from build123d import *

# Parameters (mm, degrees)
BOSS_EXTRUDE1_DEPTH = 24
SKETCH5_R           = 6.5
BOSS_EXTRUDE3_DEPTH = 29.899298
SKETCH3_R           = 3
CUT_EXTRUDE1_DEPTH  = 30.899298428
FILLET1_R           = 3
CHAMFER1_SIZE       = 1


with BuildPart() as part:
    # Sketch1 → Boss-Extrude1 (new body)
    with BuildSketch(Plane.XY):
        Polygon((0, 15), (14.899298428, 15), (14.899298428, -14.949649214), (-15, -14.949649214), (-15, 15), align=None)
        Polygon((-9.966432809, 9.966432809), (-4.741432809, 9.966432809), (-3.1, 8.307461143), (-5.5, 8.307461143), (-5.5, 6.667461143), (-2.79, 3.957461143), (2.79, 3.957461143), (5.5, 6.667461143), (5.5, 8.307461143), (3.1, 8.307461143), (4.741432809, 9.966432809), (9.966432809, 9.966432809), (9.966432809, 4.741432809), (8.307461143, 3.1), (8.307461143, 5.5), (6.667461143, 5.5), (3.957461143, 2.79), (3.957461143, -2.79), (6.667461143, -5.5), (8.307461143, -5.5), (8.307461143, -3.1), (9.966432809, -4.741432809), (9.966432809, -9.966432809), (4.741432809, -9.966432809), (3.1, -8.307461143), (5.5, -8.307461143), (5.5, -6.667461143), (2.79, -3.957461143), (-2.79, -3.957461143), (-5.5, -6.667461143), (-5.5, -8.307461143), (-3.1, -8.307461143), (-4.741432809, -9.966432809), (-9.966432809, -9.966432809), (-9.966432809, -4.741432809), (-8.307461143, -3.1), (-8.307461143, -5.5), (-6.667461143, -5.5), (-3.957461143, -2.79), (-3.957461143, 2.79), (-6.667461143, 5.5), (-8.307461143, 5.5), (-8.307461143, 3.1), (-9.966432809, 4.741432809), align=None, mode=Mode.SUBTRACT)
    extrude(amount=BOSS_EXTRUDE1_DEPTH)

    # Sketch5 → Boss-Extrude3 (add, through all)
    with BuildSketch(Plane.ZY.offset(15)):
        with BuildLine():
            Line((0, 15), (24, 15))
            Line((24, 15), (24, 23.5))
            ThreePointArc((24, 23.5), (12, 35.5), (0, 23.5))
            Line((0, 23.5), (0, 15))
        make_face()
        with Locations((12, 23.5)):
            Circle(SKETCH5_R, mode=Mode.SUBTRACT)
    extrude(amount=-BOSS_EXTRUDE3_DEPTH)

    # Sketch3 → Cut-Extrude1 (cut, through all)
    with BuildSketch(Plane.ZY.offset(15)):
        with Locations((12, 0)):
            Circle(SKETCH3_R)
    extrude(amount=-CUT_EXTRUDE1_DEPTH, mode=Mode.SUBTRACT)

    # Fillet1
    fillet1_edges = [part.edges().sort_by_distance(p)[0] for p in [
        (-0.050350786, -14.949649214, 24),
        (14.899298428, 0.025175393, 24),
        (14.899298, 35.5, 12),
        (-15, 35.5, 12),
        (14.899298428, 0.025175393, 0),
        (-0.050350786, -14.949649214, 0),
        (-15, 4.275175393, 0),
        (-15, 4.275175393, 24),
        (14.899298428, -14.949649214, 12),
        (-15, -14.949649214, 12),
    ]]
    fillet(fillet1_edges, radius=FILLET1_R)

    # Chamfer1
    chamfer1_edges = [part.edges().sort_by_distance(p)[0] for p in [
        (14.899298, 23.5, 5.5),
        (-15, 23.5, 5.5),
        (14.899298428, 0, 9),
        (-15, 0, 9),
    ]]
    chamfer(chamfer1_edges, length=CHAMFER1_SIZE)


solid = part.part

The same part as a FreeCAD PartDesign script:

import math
import FreeCAD as App
import Part
import Sketcher
from FreeCAD import Vector
Q = App.Units.Quantity


def edges_at(feature, points):
    """Names of the edges that pass closest to the given points."""
    edges = feature.Shape.Edges
    near = lambda p: min(range(len(edges)), key=lambda i: edges[i].distToShape(Part.Vertex(*p))[0])
    return sorted({f"Edge{near(p) + 1}" for p in points})

doc = App.newDocument("Part")
body = doc.addObject("PartDesign::Body", "Body")

# Sketch on XY plane
sketch1 = body.newObject("Sketcher::SketchObject", "Sketch")
sketch1.AttachmentSupport = (doc.getObject("XY_Plane"), [""])
sketch1.MapMode = "FlatFace"
sketch1.addGeometry([
    Part.LineSegment(Vector(14.9, 15, 0), Vector(-15, 15, 0)),  # 0
    Part.LineSegment(Vector(-15, 15, 0), Vector(-15, -14.9, 0)),  # 1
    Part.LineSegment(Vector(-15, -14.9, 0), Vector(14.9, -14.9, 0)),  # 2
    Part.LineSegment(Vector(14.9, -14.9, 0), Vector(14.9, 15, 0)),  # 3
    Part.LineSegment(Vector(-10, 10, 0), Vector(-4.7, 10, 0)),  # 4
    Part.LineSegment(Vector(-4.7, 10, 0), Vector(-3.1, 8.3, 0)),  # 5
    Part.LineSegment(Vector(-3.1, 8.3, 0), Vector(-5.5, 8.3, 0)),  # 6
    Part.LineSegment(Vector(-5.5, 8.3, 0), Vector(-5.5, 6.7, 0)),  # 7
    Part.LineSegment(Vector(-5.5, 6.7, 0), Vector(-2.8, 4, 0)),  # 8
    Part.LineSegment(Vector(-2.8, 4, 0), Vector(2.8, 4, 0)),  # 9
    Part.LineSegment(Vector(2.8, 4, 0), Vector(5.5, 6.7, 0)),  # 10
    Part.LineSegment(Vector(5.5, 6.7, 0), Vector(5.5, 8.3, 0)),  # 11
    Part.LineSegment(Vector(5.5, 8.3, 0), Vector(3.1, 8.3, 0)),  # 12
    Part.LineSegment(Vector(3.1, 8.3, 0), Vector(4.7, 10, 0)),  # 13
    Part.LineSegment(Vector(4.7, 10, 0), Vector(10, 10, 0)),  # 14
    Part.LineSegment(Vector(10, 10, 0), Vector(10, 4.7, 0)),  # 15
    Part.LineSegment(Vector(10, 4.7, 0), Vector(8.3, 3.1, 0)),  # 16
    Part.LineSegment(Vector(8.3, 3.1, 0), Vector(8.3, 5.5, 0)),  # 17
    Part.LineSegment(Vector(8.3, 5.5, 0), Vector(6.7, 5.5, 0)),  # 18
    Part.LineSegment(Vector(6.7, 5.5, 0), Vector(4, 2.8, 0)),  # 19
    Part.LineSegment(Vector(4, 2.8, 0), Vector(4, -2.8, 0)),  # 20
    Part.LineSegment(Vector(4, -2.8, 0), Vector(6.7, -5.5, 0)),  # 21
    Part.LineSegment(Vector(6.7, -5.5, 0), Vector(8.3, -5.5, 0)),  # 22
    Part.LineSegment(Vector(8.3, -5.5, 0), Vector(8.3, -3.1, 0)),  # 23
    Part.LineSegment(Vector(8.3, -3.1, 0), Vector(10, -4.7, 0)),  # 24
    Part.LineSegment(Vector(10, -4.7, 0), Vector(10, -10, 0)),  # 25
    Part.LineSegment(Vector(10, -10, 0), Vector(4.7, -10, 0)),  # 26
    Part.LineSegment(Vector(4.7, -10, 0), Vector(3.1, -8.3, 0)),  # 27
    Part.LineSegment(Vector(3.1, -8.3, 0), Vector(5.5, -8.3, 0)),  # 28
    Part.LineSegment(Vector(5.5, -8.3, 0), Vector(5.5, -6.7, 0)),  # 29
    Part.LineSegment(Vector(5.5, -6.7, 0), Vector(2.8, -4, 0)),  # 30
    Part.LineSegment(Vector(2.8, -4, 0), Vector(-2.8, -4, 0)),  # 31
    Part.LineSegment(Vector(-2.8, -4, 0), Vector(-5.5, -6.7, 0)),  # 32
    Part.LineSegment(Vector(-5.5, -6.7, 0), Vector(-5.5, -8.3, 0)),  # 33
    Part.LineSegment(Vector(-5.5, -8.3, 0), Vector(-3.1, -8.3, 0)),  # 34
    Part.LineSegment(Vector(-3.1, -8.3, 0), Vector(-4.7, -10, 0)),  # 35
    Part.LineSegment(Vector(-4.7, -10, 0), Vector(-10, -10, 0)),  # 36
    Part.LineSegment(Vector(-10, -10, 0), Vector(-10, -4.7, 0)),  # 37
    Part.LineSegment(Vector(-10, -4.7, 0), Vector(-8.3, -3.1, 0)),  # 38
    Part.LineSegment(Vector(-8.3, -3.1, 0), Vector(-8.3, -5.5, 0)),  # 39
    Part.LineSegment(Vector(-8.3, -5.5, 0), Vector(-6.7, -5.5, 0)),  # 40
    Part.LineSegment(Vector(-6.7, -5.5, 0), Vector(-4, -2.8, 0)),  # 41
    Part.LineSegment(Vector(-4, -2.8, 0), Vector(-4, 2.8, 0)),  # 42
    Part.LineSegment(Vector(-4, 2.8, 0), Vector(-6.7, 5.5, 0)),  # 43
    Part.LineSegment(Vector(-6.7, 5.5, 0), Vector(-8.3, 5.5, 0)),  # 44
    Part.LineSegment(Vector(-8.3, 5.5, 0), Vector(-8.3, 3.1, 0)),  # 45
    Part.LineSegment(Vector(-8.3, 3.1, 0), Vector(-10, 4.7, 0)),  # 46
    Part.LineSegment(Vector(-10, 4.7, 0), Vector(-10, 10, 0)),  # 47
], False)
sketch1.addConstraint([
    Sketcher.Constraint("Coincident", 0, 2, 1, 1),
    Sketcher.Constraint("Coincident", 1, 2, 2, 1),
    Sketcher.Constraint("Coincident", 2, 2, 3, 1),
    Sketcher.Constraint("Coincident", 3, 2, 0, 1),
    Sketcher.Constraint("Coincident", 4, 2, 5, 1),
    Sketcher.Constraint("Coincident", 5, 2, 6, 1),
    Sketcher.Constraint("Coincident", 6, 2, 7, 1),
    Sketcher.Constraint("Coincident", 7, 2, 8, 1),
    Sketcher.Constraint("Coincident", 8, 2, 9, 1),
    Sketcher.Constraint("Coincident", 9, 2, 10, 1),
    Sketcher.Constraint("Coincident", 10, 2, 11, 1),
    Sketcher.Constraint("Coincident", 11, 2, 12, 1),
    Sketcher.Constraint("Coincident", 12, 2, 13, 1),
    Sketcher.Constraint("Coincident", 13, 2, 14, 1),
    Sketcher.Constraint("Coincident", 14, 2, 15, 1),
    Sketcher.Constraint("Coincident", 15, 2, 16, 1),
    Sketcher.Constraint("Coincident", 16, 2, 17, 1),
    Sketcher.Constraint("Coincident", 17, 2, 18, 1),
    Sketcher.Constraint("Coincident", 18, 2, 19, 1),
    Sketcher.Constraint("Coincident", 19, 2, 20, 1),
    Sketcher.Constraint("Coincident", 20, 2, 21, 1),
    Sketcher.Constraint("Coincident", 21, 2, 22, 1),
    Sketcher.Constraint("Coincident", 22, 2, 23, 1),
    Sketcher.Constraint("Coincident", 23, 2, 24, 1),
    Sketcher.Constraint("Coincident", 24, 2, 25, 1),
    Sketcher.Constraint("Coincident", 25, 2, 26, 1),
    Sketcher.Constraint("Coincident", 26, 2, 27, 1),
    Sketcher.Constraint("Coincident", 27, 2, 28, 1),
    Sketcher.Constraint("Coincident", 28, 2, 29, 1),
    Sketcher.Constraint("Coincident", 29, 2, 30, 1),
    Sketcher.Constraint("Coincident", 30, 2, 31, 1),
    Sketcher.Constraint("Coincident", 31, 2, 32, 1),
    Sketcher.Constraint("Coincident", 32, 2, 33, 1),
    Sketcher.Constraint("Coincident", 33, 2, 34, 1),
    Sketcher.Constraint("Coincident", 34, 2, 35, 1),
    Sketcher.Constraint("Coincident", 35, 2, 36, 1),
    Sketcher.Constraint("Coincident", 36, 2, 37, 1),
    Sketcher.Constraint("Coincident", 37, 2, 38, 1),
    Sketcher.Constraint("Coincident", 38, 2, 39, 1),
    Sketcher.Constraint("Coincident", 39, 2, 40, 1),
    Sketcher.Constraint("Coincident", 40, 2, 41, 1),
    Sketcher.Constraint("Coincident", 41, 2, 42, 1),
    Sketcher.Constraint("Coincident", 42, 2, 43, 1),
    Sketcher.Constraint("Coincident", 43, 2, 44, 1),
    Sketcher.Constraint("Coincident", 44, 2, 45, 1),
    Sketcher.Constraint("Coincident", 45, 2, 46, 1),
    Sketcher.Constraint("Coincident", 46, 2, 47, 1),
    Sketcher.Constraint("Coincident", 47, 2, 4, 1),
    Sketcher.Constraint("Horizontal", 0),
    Sketcher.Constraint("Vertical", 1),
    Sketcher.Constraint("Horizontal", 2),
    Sketcher.Constraint("Vertical", 3),
    Sketcher.Constraint("Horizontal", 4),
    Sketcher.Constraint("Horizontal", 6),
    Sketcher.Constraint("Vertical", 7),
    Sketcher.Constraint("Horizontal", 9),
    Sketcher.Constraint("Vertical", 11),
    Sketcher.Constraint("Horizontal", 12),
    Sketcher.Constraint("Horizontal", 14),
    Sketcher.Constraint("Vertical", 15),
    Sketcher.Constraint("Vertical", 17),
    Sketcher.Constraint("Horizontal", 18),
    Sketcher.Constraint("Vertical", 20),
    Sketcher.Constraint("Horizontal", 22),
    Sketcher.Constraint("Vertical", 23),
    Sketcher.Constraint("Vertical", 25),
    Sketcher.Constraint("Horizontal", 26),
    Sketcher.Constraint("Horizontal", 28),
    Sketcher.Constraint("Vertical", 29),
    Sketcher.Constraint("Horizontal", 31),
    Sketcher.Constraint("Vertical", 33),
    Sketcher.Constraint("Horizontal", 34),
    Sketcher.Constraint("Horizontal", 36),
    Sketcher.Constraint("Vertical", 37),
    Sketcher.Constraint("Vertical", 39),
    Sketcher.Constraint("Horizontal", 40),
    Sketcher.Constraint("Vertical", 42),
    Sketcher.Constraint("Horizontal", 44),
    Sketcher.Constraint("Vertical", 45),
    Sketcher.Constraint("Vertical", 47),
    Sketcher.Constraint("Symmetric", 4, 2, 26, 2, -1, 1),
    Sketcher.Constraint("Symmetric", 5, 2, 27, 2, -1, 1),
    Sketcher.Constraint("Symmetric", 7, 2, 29, 2, -1, 1),
    Sketcher.Constraint("Symmetric", 8, 2, 30, 2, -1, 1),
    Sketcher.Constraint("Symmetric", 10, 2, 32, 2, -1, 1),
    Sketcher.Constraint("Symmetric", 12, 2, 34, 2, -1, 1),
    Sketcher.Constraint("Symmetric", 13, 2, 35, 2, -1, 1),
    Sketcher.Constraint("Symmetric", 15, 2, 37, 2, -1, 1),
    Sketcher.Constraint("Symmetric", 16, 2, 38, 2, -1, 1),
    Sketcher.Constraint("Symmetric", 18, 2, 40, 2, -1, 1),
    Sketcher.Constraint("Symmetric", 19, 2, 41, 2, -1, 1),
    Sketcher.Constraint("Symmetric", 21, 2, 43, 2, -1, 1),
    Sketcher.Constraint("Symmetric", 23, 2, 45, 2, -1, 1),
    Sketcher.Constraint("Symmetric", 24, 2, 46, 2, -1, 1),
    Sketcher.Constraint("Symmetric", 7, 2, 10, 2, -2),
    Sketcher.Constraint("Symmetric", 5, 2, 12, 2, -2),
    Sketcher.Constraint("Symmetric", 4, 2, 13, 2, -2),
    Sketcher.Constraint("Symmetric", 24, 2, 37, 2, -2),
    Sketcher.Constraint("Symmetric", 23, 2, 38, 2, -2),
    Sketcher.Constraint("Symmetric", 21, 2, 40, 2, -2),
    Sketcher.Constraint("Perpendicular", 8, 10),
    Sketcher.Constraint("Perpendicular", 5, 16),
    Sketcher.Constraint("Parallel", 10, 19),
    Sketcher.Constraint("Perpendicular", 19, 21),
    Sketcher.Constraint("Perpendicular", 30, 32),
    Sketcher.Constraint("Perpendicular", 41, 43),
    Sketcher.Constraint("Horizontal", 20, 2, 41, 2),
    Sketcher.Constraint("Equal", 44, 7),
    Sketcher.Constraint("Equal", 36, 15),
    Sketcher.Constraint("Equal", 34, 17),
    Sketcher.Constraint("Equal", 31, 20),
    Sketcher.Constraint("Equal", 13, 16),
    Sketcher.Constraint("Equal", 10, 19),
    Sketcher.Constraint("DistanceX", 6, 2, 6, 1, Q("2.4 mm")),
    Sketcher.Constraint("DistanceX", 0, 2, -1, 1, Q("15 mm")),
    Sketcher.Constraint("DistanceY", -1, 1, 0, 2, Q("15 mm")),
    Sketcher.Constraint("DistanceX", 7, 2, 10, 2, Q("11 mm")),
    Sketcher.Constraint("DistanceX", 9, 1, 9, 2, Q("5.58 mm")),
    Sketcher.Constraint("DistanceX", 18, 2, 18, 1, Q("1.64 mm")),
    Sketcher.Constraint("DistanceX", 4, 1, 4, 2, Q("5.225 mm")),
    Sketcher.Constraint("DistanceX", 0, 2, 0, 1, Q("29.899298 mm")),
    Sketcher.Constraint("DistanceY", 1, 2, 1, 1, Q("29.949649 mm")),
    Sketcher.Constraint("Distance", 5, Q("2.333771 mm")),
    Sketcher.Constraint("DistanceY", -1, 1, 5, 2, Q("8.307461 mm")),
])
pad1 = body.newObject("PartDesign::Pad", "Pad")
pad1.Profile = sketch1
pad1.Length = 24

# Sketch on YZ plane
sketch2 = body.newObject("Sketcher::SketchObject", "Sketch001")
sketch2.AttachmentSupport = (doc.getObject("YZ_Plane"), [""])
sketch2.MapMode = "FlatFace"
sketch2.AttachmentOffset = App.Placement(Vector(0, 0, -15), App.Rotation())
sketch2.addGeometry([
    Part.LineSegment(Vector(15, 0, 0), Vector(15, 24, 0)),  # 0
    Part.LineSegment(Vector(15, 24, 0), Vector(24, 24, 0)),  # 1
    Part.ArcOfCircle(Part.Circle(Vector(24, 12, 0), Vector(0, 0, 1), 12), math.radians(-90), math.radians(90)),  # 2
    Part.LineSegment(Vector(24, 0, 0), Vector(15, 0, 0)),  # 3
    Part.Circle(Vector(24, 12, 0), Vector(0, 0, 1), 6),  # 4
], False)
sketch2.addConstraint([
    Sketcher.Constraint("Coincident", 0, 2, 1, 1),
    Sketcher.Constraint("Tangent", 1, 2, 2, 2),
    Sketcher.Constraint("Tangent", 2, 1, 3, 1),
    Sketcher.Constraint("Coincident", 3, 2, 0, 1),
    Sketcher.Constraint("Vertical", 0),
    Sketcher.Constraint("Horizontal", 1),
    Sketcher.Constraint("Horizontal", 3),
    Sketcher.Constraint("Coincident", 4, 3, 2, 3),
    Sketcher.Constraint("PointOnObject", 2, 1, -1),
    Sketcher.Constraint("Diameter", 4, Q("13 mm")),
    Sketcher.Constraint("Radius", 2, Q("12 mm")),
    Sketcher.Constraint("DistanceX", 1, 1, 1, 2, Q("8.5 mm")),
    Sketcher.Constraint("DistanceX", -1, 1, 0, 2, Q("15 mm")),
])
pad2 = body.newObject("PartDesign::Pad", "Pad001")
pad2.Profile = sketch2
pad2.Length = 29.899298

# Sketch on YZ plane
sketch3 = body.newObject("Sketcher::SketchObject", "Sketch002")
sketch3.AttachmentSupport = (doc.getObject("YZ_Plane"), [""])
sketch3.MapMode = "FlatFace"
sketch3.AttachmentOffset = App.Placement(Vector(0, 0, -15), App.Rotation())
sketch3.addGeometry(Part.Circle(Vector(0, 12, 0), Vector(0, 0, 1), 3), False)
sketch3.addConstraint([
    Sketcher.Constraint("PointOnObject", 0, 3, -2),
    Sketcher.Constraint("Diameter", 0, Q("6 mm")),
    Sketcher.Constraint("DistanceY", -1, 1, 0, 3, Q("12 mm")),
])
pocket1 = body.newObject("PartDesign::Pocket", "Pocket")
pocket1.Profile = sketch3
pocket1.Type = "ThroughAll"
pocket1.Reversed = True
doc.recompute()

fillet = body.newObject("PartDesign::Fillet", "Fillet")
fillet.Base = (pocket1, edges_at(pocket1, [
    (-0.05, -14.95, 24),
    (14.899, 0.025, 24),
    (14.899, 35.5, 12),
    (-15, 35.5, 12),
    (14.899, 0.025, 0),
    (-0.05, -14.95, 0),
    (-15, 4.275, 0),
    (-15, 4.275, 24),
    (14.899, -14.95, 12),
    (-15, -14.95, 12),
]))
fillet.Radius = 3
doc.recompute()

chamfer = body.newObject("PartDesign::Chamfer", "Chamfer")
chamfer.Base = (fillet, edges_at(fillet, [
    (14.899, 23.5, 5.5),
    (-15, 23.5, 5.5),
    (14.899, 0, 9),
    (-15, 0, 9),
]))
chamfer.Size = 1

doc.recompute()
